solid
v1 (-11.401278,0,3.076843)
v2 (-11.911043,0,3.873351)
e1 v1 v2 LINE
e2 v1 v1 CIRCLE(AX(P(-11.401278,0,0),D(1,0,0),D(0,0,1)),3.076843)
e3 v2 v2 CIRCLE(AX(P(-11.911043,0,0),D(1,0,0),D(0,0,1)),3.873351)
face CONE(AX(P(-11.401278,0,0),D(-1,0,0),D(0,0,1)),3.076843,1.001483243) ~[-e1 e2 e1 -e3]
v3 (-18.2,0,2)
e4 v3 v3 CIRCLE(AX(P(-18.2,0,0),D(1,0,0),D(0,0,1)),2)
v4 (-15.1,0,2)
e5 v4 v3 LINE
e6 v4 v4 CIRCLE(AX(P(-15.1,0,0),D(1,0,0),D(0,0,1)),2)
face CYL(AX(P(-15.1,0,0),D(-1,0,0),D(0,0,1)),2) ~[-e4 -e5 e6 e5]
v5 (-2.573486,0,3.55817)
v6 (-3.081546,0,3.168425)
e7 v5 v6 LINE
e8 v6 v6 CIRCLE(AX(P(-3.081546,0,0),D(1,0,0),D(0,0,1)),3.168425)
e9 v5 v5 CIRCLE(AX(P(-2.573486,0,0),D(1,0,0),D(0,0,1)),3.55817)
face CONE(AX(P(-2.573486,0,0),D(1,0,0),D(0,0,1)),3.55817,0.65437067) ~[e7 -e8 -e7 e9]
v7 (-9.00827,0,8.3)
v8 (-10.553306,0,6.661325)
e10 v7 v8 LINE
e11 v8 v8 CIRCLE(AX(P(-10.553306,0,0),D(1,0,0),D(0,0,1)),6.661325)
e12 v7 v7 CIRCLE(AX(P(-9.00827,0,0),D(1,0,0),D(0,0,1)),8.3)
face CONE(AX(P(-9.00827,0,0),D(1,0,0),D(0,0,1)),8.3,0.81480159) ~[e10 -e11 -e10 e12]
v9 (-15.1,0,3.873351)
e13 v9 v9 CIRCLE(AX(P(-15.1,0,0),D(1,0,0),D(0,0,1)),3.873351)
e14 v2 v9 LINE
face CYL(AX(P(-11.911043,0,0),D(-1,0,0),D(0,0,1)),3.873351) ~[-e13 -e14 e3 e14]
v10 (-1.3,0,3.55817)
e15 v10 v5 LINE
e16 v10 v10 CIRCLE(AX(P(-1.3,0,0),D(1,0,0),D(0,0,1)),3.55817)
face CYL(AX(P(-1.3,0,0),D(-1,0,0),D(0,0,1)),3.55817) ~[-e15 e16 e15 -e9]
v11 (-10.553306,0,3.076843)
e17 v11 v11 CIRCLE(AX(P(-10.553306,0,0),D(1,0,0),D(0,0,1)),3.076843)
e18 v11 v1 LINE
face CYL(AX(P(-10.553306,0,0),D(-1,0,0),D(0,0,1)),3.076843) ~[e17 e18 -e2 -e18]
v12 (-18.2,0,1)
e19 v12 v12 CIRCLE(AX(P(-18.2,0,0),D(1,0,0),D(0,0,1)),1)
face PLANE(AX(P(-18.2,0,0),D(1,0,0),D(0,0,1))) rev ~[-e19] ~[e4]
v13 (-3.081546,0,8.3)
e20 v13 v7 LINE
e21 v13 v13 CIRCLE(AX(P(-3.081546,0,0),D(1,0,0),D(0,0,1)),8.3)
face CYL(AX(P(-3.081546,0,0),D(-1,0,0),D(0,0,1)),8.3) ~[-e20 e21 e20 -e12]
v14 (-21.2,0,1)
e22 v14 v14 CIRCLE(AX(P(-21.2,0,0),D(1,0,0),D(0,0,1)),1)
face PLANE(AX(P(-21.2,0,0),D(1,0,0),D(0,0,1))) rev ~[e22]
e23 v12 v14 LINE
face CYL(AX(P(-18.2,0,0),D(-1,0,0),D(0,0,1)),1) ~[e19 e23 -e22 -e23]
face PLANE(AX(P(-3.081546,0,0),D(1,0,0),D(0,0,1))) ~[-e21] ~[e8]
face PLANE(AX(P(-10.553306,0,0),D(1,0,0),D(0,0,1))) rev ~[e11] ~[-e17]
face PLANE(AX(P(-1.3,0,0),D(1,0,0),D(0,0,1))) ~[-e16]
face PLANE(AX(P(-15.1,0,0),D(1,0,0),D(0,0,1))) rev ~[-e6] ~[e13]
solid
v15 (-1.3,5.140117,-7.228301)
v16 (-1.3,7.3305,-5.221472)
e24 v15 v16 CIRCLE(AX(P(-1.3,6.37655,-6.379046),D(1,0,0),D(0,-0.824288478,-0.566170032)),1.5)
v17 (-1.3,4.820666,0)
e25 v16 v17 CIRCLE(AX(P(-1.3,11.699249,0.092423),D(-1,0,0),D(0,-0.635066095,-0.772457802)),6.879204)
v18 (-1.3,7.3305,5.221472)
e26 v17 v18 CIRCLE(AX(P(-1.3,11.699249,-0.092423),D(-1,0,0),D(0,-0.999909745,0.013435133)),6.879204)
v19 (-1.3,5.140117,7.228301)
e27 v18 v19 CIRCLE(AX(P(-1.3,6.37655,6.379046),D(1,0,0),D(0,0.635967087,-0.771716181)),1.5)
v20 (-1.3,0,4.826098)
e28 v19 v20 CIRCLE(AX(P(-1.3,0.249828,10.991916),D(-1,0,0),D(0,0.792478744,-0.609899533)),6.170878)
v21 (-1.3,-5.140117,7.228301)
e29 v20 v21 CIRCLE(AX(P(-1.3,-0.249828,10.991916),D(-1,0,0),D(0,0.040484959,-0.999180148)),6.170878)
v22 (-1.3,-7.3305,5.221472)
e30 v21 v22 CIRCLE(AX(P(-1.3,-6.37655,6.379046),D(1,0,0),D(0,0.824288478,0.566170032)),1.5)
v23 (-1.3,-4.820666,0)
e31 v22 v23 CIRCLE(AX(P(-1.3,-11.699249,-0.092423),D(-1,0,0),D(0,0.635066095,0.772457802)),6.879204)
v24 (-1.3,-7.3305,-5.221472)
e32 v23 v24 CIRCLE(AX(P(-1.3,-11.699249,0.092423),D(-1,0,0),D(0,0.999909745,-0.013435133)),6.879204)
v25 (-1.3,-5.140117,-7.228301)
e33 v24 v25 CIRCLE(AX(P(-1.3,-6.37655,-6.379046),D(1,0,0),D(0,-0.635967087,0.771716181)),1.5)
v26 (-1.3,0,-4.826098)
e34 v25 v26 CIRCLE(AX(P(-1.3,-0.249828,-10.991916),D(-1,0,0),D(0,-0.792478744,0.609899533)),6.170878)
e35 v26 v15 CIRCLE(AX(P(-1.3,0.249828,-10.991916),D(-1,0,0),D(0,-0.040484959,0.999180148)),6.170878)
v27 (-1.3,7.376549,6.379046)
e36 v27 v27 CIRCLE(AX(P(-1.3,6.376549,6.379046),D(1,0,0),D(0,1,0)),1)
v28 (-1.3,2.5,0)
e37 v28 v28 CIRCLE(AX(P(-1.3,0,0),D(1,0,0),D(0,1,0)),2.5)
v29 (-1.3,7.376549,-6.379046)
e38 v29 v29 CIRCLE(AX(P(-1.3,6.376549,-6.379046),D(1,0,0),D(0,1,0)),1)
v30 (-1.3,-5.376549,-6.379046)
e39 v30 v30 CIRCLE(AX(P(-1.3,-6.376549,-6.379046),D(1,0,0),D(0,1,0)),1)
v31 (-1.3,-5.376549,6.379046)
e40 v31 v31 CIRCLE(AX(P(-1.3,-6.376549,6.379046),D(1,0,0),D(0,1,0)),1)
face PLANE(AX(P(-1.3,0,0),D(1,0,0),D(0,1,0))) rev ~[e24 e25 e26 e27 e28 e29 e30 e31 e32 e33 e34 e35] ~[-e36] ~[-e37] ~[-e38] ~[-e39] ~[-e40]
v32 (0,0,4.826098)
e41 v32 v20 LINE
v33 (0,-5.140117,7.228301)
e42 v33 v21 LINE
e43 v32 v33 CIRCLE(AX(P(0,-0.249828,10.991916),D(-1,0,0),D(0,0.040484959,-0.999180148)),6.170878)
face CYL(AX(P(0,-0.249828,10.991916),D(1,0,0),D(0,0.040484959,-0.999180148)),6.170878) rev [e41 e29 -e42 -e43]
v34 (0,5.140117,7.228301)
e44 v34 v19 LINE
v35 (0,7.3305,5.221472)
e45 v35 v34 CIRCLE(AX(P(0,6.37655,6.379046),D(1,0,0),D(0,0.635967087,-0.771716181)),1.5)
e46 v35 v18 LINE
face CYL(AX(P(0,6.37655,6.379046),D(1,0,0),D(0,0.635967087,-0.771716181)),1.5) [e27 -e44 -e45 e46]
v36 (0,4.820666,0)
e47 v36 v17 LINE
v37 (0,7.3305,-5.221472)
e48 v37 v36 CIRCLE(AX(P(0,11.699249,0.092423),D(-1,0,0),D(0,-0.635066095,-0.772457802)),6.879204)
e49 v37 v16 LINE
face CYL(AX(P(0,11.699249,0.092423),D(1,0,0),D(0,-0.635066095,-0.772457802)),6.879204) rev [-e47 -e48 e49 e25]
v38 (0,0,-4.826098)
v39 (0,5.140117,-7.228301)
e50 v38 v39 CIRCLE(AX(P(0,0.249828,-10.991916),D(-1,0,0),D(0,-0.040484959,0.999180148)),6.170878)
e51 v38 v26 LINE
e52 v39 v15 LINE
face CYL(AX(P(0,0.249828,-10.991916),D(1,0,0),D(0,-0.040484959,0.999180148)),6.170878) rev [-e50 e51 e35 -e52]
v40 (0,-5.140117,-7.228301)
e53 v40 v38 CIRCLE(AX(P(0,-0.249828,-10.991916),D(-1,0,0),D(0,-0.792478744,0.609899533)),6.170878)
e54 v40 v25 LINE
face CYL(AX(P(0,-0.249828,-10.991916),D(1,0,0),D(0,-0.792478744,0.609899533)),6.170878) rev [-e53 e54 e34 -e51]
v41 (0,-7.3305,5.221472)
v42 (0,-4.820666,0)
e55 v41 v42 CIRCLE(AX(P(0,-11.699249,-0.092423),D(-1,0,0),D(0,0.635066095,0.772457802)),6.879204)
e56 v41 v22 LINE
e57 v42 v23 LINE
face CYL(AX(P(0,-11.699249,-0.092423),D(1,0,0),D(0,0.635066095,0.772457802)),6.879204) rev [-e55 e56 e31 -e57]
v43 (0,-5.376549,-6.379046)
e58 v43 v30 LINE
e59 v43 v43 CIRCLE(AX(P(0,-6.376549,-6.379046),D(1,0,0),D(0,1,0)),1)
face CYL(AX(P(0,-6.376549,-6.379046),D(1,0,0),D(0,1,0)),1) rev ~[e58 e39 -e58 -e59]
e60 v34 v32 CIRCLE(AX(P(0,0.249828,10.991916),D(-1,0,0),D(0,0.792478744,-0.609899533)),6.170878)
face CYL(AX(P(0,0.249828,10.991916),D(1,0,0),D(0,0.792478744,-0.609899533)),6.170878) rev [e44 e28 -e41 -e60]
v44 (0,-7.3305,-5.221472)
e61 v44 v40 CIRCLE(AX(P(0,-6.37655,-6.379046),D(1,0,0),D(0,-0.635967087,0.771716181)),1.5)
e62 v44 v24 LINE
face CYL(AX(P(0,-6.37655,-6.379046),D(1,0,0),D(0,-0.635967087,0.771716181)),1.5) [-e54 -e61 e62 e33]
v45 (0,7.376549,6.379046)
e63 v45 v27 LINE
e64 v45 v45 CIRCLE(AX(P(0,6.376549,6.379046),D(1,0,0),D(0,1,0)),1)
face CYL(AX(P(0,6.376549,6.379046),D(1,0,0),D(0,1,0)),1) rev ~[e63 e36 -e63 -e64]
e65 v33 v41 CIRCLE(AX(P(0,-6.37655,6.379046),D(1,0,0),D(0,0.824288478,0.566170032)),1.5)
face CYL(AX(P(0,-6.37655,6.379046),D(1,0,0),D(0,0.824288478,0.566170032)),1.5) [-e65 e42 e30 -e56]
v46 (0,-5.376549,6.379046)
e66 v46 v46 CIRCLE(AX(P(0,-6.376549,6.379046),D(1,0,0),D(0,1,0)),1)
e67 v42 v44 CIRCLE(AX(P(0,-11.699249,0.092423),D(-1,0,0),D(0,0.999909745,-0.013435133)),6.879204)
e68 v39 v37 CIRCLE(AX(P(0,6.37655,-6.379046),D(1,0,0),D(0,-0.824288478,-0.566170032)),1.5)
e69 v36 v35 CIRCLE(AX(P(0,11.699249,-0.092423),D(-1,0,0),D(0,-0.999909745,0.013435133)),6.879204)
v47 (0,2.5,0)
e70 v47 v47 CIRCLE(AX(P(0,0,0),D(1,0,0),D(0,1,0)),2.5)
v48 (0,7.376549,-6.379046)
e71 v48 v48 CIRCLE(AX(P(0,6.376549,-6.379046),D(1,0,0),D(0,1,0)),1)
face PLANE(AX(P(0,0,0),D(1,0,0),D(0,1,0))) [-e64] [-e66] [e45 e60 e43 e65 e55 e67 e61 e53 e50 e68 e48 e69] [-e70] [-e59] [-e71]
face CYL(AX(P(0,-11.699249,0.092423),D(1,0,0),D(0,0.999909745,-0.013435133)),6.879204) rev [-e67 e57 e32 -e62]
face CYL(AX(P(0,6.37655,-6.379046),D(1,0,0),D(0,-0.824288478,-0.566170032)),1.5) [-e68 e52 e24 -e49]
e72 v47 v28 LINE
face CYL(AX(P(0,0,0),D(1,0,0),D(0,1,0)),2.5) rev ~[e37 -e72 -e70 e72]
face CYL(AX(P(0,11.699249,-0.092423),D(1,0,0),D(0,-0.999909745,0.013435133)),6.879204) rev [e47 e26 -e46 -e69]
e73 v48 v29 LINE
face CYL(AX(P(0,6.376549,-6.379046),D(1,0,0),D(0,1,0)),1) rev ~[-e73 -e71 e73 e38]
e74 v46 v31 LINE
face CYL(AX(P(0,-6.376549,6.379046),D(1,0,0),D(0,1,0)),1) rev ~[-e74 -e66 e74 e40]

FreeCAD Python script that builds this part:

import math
import FreeCAD as App
import Part
import Sketcher
from FreeCAD import Vector

doc = App.newDocument("Part")
params = doc.addObject("Spreadsheet::Sheet", "Params")
for row, (alias, value) in enumerate([
    ("sketch1_diameter", "2 mm"),
    ("sketch1_diameter2", "5 mm"),
    ("sketch1_radius", "1.5 mm"),
    ("pad1_length", "1.3 mm"),
    ("sketch2_width", "3 mm"),
    ("sketch2_height", "1 mm"),
    ("sketch2_width2", "3.1 mm"),
    ("sketch2_width3", "19.9 mm"),
    ("revolution_angle", "360 deg"),
], start=1):
    params.set(f"A{row}", alias)
    params.set(f"B{row}", "=" + value)
    params.setAlias(f"B{row}", alias)

body = doc.addObject("PartDesign::Body", "Body")

# Sketch on YZ plane
sketch1 = doc.addObject("Sketcher::SketchObject", "Sketch")
body.addObject(sketch1)
sketch1.AttachmentSupport = (doc.YZ_Plane, [""])
sketch1.MapMode = "FlatFace"
sketch1.addGeometry([
    Part.ArcOfCircle(Part.Circle(Vector(11.699249, -0.092423, 0), Vector(0, 0, 1), 6.879204), math.radians(129.424887), math.radians(179.2302)),  # 0
    Part.ArcOfCircle(Part.Circle(Vector(6.37655, 6.379046, 0), Vector(0, 0, 1), 1.5), math.radians(-50.508251), math.radians(145.51642)),  # 1
    Part.ArcOfCircle(Part.Circle(Vector(0.249828, 10.991916, 0), Vector(0, 0, 1), 6.170878), math.radians(-92.320251), math.radians(-37.582239)),  # 2
    Part.ArcOfCircle(Part.Circle(Vector(-0.249828, 10.991916, 0), Vector(0, 0, 1), 6.170878), math.radians(-142.417761), math.radians(-87.679749)),  # 3
    Part.ArcOfCircle(Part.Circle(Vector(-6.37655, 6.379046, 0), Vector(0, 0, 1), 1.5), math.radians(34.48358), math.radians(230.508251)),  # 4
    Part.ArcOfCircle(Part.Circle(Vector(-11.699249, -0.092423, 0), Vector(0, 0, 1), 6.879204), math.radians(0.7698), math.radians(50.575113)),  # 5
    Part.ArcOfCircle(Part.Circle(Vector(-11.699249, 0.092423, 0), Vector(0, 0, 1), 6.879204), math.radians(-50.575113), math.radians(-0.7698)),  # 6
    Part.ArcOfCircle(Part.Circle(Vector(-6.37655, -6.379046, 0), Vector(0, 0, 1), 1.5), math.radians(129.491749), math.radians(325.51642)),  # 7
    Part.ArcOfCircle(Part.Circle(Vector(-0.249828, -10.991916, 0), Vector(0, 0, 1), 6.170878), math.radians(87.679749), math.radians(142.417761)),  # 8
    Part.ArcOfCircle(Part.Circle(Vector(0.249828, -10.991916, 0), Vector(0, 0, 1), 6.170878), math.radians(37.582239), math.radians(92.320251)),  # 9
    Part.ArcOfCircle(Part.Circle(Vector(6.37655, -6.379046, 0), Vector(0, 0, 1), 1.5), math.radians(-145.51642), math.radians(50.508251)),  # 10
    Part.ArcOfCircle(Part.Circle(Vector(11.699249, 0.092423, 0), Vector(0, 0, 1), 6.879204), math.radians(-179.2302), math.radians(-129.424887)),  # 11
    Part.Circle(Vector(-6.376549, -6.379046, 0), Vector(0, 0, 1), 1),  # 12
    Part.Circle(Vector(6.376549, -6.379046, 0), Vector(0, 0, 1), 1),  # 13
    Part.Circle(Vector(0, 0, 0), Vector(0, 0, 1), 2.5),  # 14
    Part.Circle(Vector(-6.376549, 6.379046, 0), Vector(0, 0, 1), 1),  # 15
    Part.Circle(Vector(6.376549, 6.379046, 0), Vector(0, 0, 1), 1),  # 16
], False)
sketch1.addConstraint([
    Sketcher.Constraint("Coincident", 0, 1, 1, 1),
    Sketcher.Constraint("Coincident", 1, 2, 2, 2),
    Sketcher.Constraint("Coincident", 2, 1, 3, 2),
    Sketcher.Constraint("Coincident", 3, 1, 4, 1),
    Sketcher.Constraint("Coincident", 4, 2, 5, 2),
    Sketcher.Constraint("Coincident", 5, 1, 6, 2),
    Sketcher.Constraint("Coincident", 6, 1, 7, 1),
    Sketcher.Constraint("Coincident", 7, 2, 8, 2),
    Sketcher.Constraint("Coincident", 8, 1, 9, 2),
    Sketcher.Constraint("Coincident", 9, 1, 10, 1),
    Sketcher.Constraint("Coincident", 10, 2, 11, 2),
    Sketcher.Constraint("Coincident", 11, 1, 0, 2),
    Sketcher.Constraint("Coincident", 14, 3, -1, 1),
    Sketcher.Constraint("Coincident", 12, 3, 7, 3),
    Sketcher.Constraint("Coincident", 13, 3, 10, 3),
    Sketcher.Constraint("Coincident", 15, 3, 4, 3),
    Sketcher.Constraint("Coincident", 16, 3, 1, 3),
    Sketcher.Constraint("Equal", 2, 3),
    Sketcher.Constraint("Equal", 1, 4),
    Sketcher.Constraint("Equal", 0, 5),
    Sketcher.Constraint("Equal", 5, 6),
    Sketcher.Constraint("Equal", 4, 7),
    Sketcher.Constraint("Equal", 3, 8),
    Sketcher.Constraint("Equal", 8, 9),
    Sketcher.Constraint("Equal", 7, 10),
    Sketcher.Constraint("Equal", 6, 11),
    Sketcher.Constraint("Equal", 12, 13),
    Sketcher.Constraint("Equal", 13, 15),
    Sketcher.Constraint("Equal", 15, 16),
    Sketcher.Constraint("Symmetric", 0, 3, 6, 3, -1, 1),
    Sketcher.Constraint("Symmetric", 1, 3, 7, 3, -1, 1),
    Sketcher.Constraint("Symmetric", 2, 3, 8, 3, -1, 1),
    Sketcher.Constraint("Symmetric", 3, 3, 9, 3, -1, 1),
    Sketcher.Constraint("Symmetric", 4, 3, 10, 3, -1, 1),
    Sketcher.Constraint("Symmetric", 5, 3, 11, 3, -1, 1),
    Sketcher.Constraint("Symmetric", 2, 3, 3, 3, -2),
    Sketcher.Constraint("Symmetric", 1, 3, 4, 3, -2),
    Sketcher.Constraint("PointOnObject", 5, 1, -1),
    Sketcher.Constraint("Horizontal", 0, 1, 4, 2),
    Sketcher.Constraint("Diameter", 12, 2.0),
    Sketcher.Constraint("Diameter", 14, 5.0),
    Sketcher.Constraint("Radius", 1, 1.5),
    Sketcher.Constraint("Radius", 0, 6.879204),
    Sketcher.Constraint("Radius", 2, 6.170878),
    Sketcher.Constraint("DistanceX", -1, 1, 0, 1, 7.3305),
    Sketcher.Constraint("DistanceY", -1, 1, 1, 2, 7.228301),
    Sketcher.Constraint("DistanceX", 1, 3, 0, 3, 5.3227),
    Sketcher.Constraint("DistanceX", 4, 3, 1, 3, 12.753099),
    Sketcher.Constraint("DistanceY", -1, 1, 0, 1, 5.221472),
    Sketcher.Constraint("DistanceX", 2, 3, 1, 3, 6.126722),
])
sketch1.setExpression("Constraints[39]", "Params.sketch1_diameter")
sketch1.setExpression("Constraints[40]", "Params.sketch1_diameter2")
sketch1.setExpression("Constraints[41]", "Params.sketch1_radius")
pad1 = doc.addObject("PartDesign::Pad", "Pad")
body.addObject(pad1)
pad1.Profile = sketch1
pad1.setExpression("Length", "Params.pad1_length")
pad1.Reversed = True
body2 = doc.addObject("PartDesign::Body", "Body001")

# Sketch on XZ plane
sketch2 = doc.addObject("Sketcher::SketchObject", "Sketch001")
body2.addObject(sketch2)
sketch2.AttachmentSupport = (doc.getObject("XZ_Plane001"), [""])
sketch2.MapMode = "FlatFace"
sketch2.addGeometry([
    Part.LineSegment(Vector(-1.3, 0, 0), Vector(-1.3, 3.55817, 0)),  # 0
    Part.LineSegment(Vector(-1.3, 3.55817, 0), Vector(-2.573486, 3.55817, 0)),  # 1
    Part.LineSegment(Vector(-2.573486, 3.55817, 0), Vector(-3.081546, 3.168425, 0)),  # 2
    Part.LineSegment(Vector(-3.081546, 3.168425, 0), Vector(-3.081546, 8.3, 0)),  # 3
    Part.LineSegment(Vector(-3.081546, 8.3, 0), Vector(-9.00827, 8.3, 0)),  # 4
    Part.LineSegment(Vector(-9.00827, 8.3, 0), Vector(-10.553306, 6.661325, 0)),  # 5
    Part.LineSegment(Vector(-10.553306, 6.661325, 0), Vector(-10.553306, 3.076843, 0)),  # 6
    Part.LineSegment(Vector(-10.553306, 3.076843, 0), Vector(-11.401278, 3.076843, 0)),  # 7
    Part.LineSegment(Vector(-11.401278, 3.076843, 0), Vector(-11.911043, 3.873351, 0)),  # 8
    Part.LineSegment(Vector(-11.911043, 3.873351, 0), Vector(-15.1, 3.873351, 0)),  # 9
    Part.LineSegment(Vector(-15.1, 3.873351, 0), Vector(-15.1, 2, 0)),  # 10
    Part.LineSegment(Vector(-15.1, 2, 0), Vector(-18.2, 2, 0)),  # 11
    Part.LineSegment(Vector(-18.2, 2, 0), Vector(-18.2, 1, 0)),  # 12
    Part.LineSegment(Vector(-18.2, 1, 0), Vector(-21.2, 1, 0)),  # 13
    Part.LineSegment(Vector(-21.2, 1, 0), Vector(-21.2, 0, 0)),  # 14
    Part.LineSegment(Vector(-21.2, 0, 0), Vector(-1.3, 0, 0)),  # 15
], False)
sketch2.addConstraint([
    Sketcher.Constraint("Coincident", 0, 2, 1, 1),
    Sketcher.Constraint("Coincident", 1, 2, 2, 1),
    Sketcher.Constraint("Coincident", 2, 2, 3, 1),
    Sketcher.Constraint("Coincident", 3, 2, 4, 1),
    Sketcher.Constraint("Coincident", 4, 2, 5, 1),
    Sketcher.Constraint("Coincident", 5, 2, 6, 1),
    Sketcher.Constraint("Coincident", 6, 2, 7, 1),
    Sketcher.Constraint("Coincident", 7, 2, 8, 1),
    Sketcher.Constraint("Coincident", 8, 2, 9, 1),
    Sketcher.Constraint("Coincident", 9, 2, 10, 1),
    Sketcher.Constraint("Coincident", 10, 2, 11, 1),
    Sketcher.Constraint("Coincident", 11, 2, 12, 1),
    Sketcher.Constraint("Coincident", 12, 2, 13, 1),
    Sketcher.Constraint("Coincident", 13, 2, 14, 1),
    Sketcher.Constraint("Coincident", 14, 2, 15, 1),
    Sketcher.Constraint("Coincident", 15, 2, 0, 1),
    Sketcher.Constraint("Vertical", 0),
    Sketcher.Constraint("Horizontal", 1),
    Sketcher.Constraint("Vertical", 3),
    Sketcher.Constraint("Horizontal", 4),
    Sketcher.Constraint("Vertical", 6),
    Sketcher.Constraint("Horizontal", 7),
    Sketcher.Constraint("Horizontal", 9),
    Sketcher.Constraint("Vertical", 10),
    Sketcher.Constraint("Horizontal", 11),
    Sketcher.Constraint("Vertical", 12),
    Sketcher.Constraint("Horizontal", 13),
    Sketcher.Constraint("Vertical", 14),
    Sketcher.Constraint("Horizontal", 15),
    Sketcher.Constraint("PointOnObject", 14, 2, -1),
    Sketcher.Constraint("Equal", 12, 14),
    Sketcher.Constraint("DistanceX", 13, 2, 13, 1, 3.0),
    Sketcher.Constraint("DistanceY", 12, 2, 12, 1, 1.0),
    Sketcher.Constraint("DistanceX", 11, 2, 11, 1, 3.1),
    Sketcher.Constraint("DistanceX", 15, 1, 15, 2, 19.9),
    Sketcher.Constraint("DistanceX", 0, 2, -1, 1, 1.3),
    Sketcher.Constraint("DistanceY", -1, 1, 3, 2, 8.3),
    Sketcher.Constraint("DistanceY", 0, 1, 0, 2, 3.55817),
    Sketcher.Constraint("DistanceY", 6, 2, 6, 1, 3.584482),
    Sketcher.Constraint("DistanceY", 10, 2, 10, 1, 1.873351),
    Sketcher.Constraint("DistanceY", 2, 2, 5, 2, 3.4929),
    Sketcher.Constraint("DistanceX", 1, 2, 1, 1, 1.273486),
    Sketcher.Constraint("DistanceX", 4, 2, 4, 1, 5.926724),
    Sketcher.Constraint("DistanceX", 7, 2, 7, 1, 0.847972),
    Sketcher.Constraint("DistanceX", 9, 2, 9, 1, 3.188957),
    Sketcher.Constraint("DistanceY", 3, 1, 3, 2, 5.131575),
    Sketcher.Constraint("DistanceX", 4, 2, -1, 1, 9.00827),
    Sketcher.Constraint("DistanceX", 5, 2, 3, 2, 7.47176),
])
sketch2.setExpression("Constraints[31]", "Params.sketch2_width")
sketch2.setExpression("Constraints[32]", "Params.sketch2_height")
sketch2.setExpression("Constraints[33]", "Params.sketch2_width2")
sketch2.setExpression("Constraints[34]", "Params.sketch2_width3")
revolution = doc.addObject("PartDesign::Revolution", "Revolution")
body2.addObject(revolution)
revolution.Profile = sketch2
revolution.ReferenceAxis = (sketch2, ["H_Axis"])
revolution.setExpression("Angle", "Params.revolution_angle")

doc.recompute()
